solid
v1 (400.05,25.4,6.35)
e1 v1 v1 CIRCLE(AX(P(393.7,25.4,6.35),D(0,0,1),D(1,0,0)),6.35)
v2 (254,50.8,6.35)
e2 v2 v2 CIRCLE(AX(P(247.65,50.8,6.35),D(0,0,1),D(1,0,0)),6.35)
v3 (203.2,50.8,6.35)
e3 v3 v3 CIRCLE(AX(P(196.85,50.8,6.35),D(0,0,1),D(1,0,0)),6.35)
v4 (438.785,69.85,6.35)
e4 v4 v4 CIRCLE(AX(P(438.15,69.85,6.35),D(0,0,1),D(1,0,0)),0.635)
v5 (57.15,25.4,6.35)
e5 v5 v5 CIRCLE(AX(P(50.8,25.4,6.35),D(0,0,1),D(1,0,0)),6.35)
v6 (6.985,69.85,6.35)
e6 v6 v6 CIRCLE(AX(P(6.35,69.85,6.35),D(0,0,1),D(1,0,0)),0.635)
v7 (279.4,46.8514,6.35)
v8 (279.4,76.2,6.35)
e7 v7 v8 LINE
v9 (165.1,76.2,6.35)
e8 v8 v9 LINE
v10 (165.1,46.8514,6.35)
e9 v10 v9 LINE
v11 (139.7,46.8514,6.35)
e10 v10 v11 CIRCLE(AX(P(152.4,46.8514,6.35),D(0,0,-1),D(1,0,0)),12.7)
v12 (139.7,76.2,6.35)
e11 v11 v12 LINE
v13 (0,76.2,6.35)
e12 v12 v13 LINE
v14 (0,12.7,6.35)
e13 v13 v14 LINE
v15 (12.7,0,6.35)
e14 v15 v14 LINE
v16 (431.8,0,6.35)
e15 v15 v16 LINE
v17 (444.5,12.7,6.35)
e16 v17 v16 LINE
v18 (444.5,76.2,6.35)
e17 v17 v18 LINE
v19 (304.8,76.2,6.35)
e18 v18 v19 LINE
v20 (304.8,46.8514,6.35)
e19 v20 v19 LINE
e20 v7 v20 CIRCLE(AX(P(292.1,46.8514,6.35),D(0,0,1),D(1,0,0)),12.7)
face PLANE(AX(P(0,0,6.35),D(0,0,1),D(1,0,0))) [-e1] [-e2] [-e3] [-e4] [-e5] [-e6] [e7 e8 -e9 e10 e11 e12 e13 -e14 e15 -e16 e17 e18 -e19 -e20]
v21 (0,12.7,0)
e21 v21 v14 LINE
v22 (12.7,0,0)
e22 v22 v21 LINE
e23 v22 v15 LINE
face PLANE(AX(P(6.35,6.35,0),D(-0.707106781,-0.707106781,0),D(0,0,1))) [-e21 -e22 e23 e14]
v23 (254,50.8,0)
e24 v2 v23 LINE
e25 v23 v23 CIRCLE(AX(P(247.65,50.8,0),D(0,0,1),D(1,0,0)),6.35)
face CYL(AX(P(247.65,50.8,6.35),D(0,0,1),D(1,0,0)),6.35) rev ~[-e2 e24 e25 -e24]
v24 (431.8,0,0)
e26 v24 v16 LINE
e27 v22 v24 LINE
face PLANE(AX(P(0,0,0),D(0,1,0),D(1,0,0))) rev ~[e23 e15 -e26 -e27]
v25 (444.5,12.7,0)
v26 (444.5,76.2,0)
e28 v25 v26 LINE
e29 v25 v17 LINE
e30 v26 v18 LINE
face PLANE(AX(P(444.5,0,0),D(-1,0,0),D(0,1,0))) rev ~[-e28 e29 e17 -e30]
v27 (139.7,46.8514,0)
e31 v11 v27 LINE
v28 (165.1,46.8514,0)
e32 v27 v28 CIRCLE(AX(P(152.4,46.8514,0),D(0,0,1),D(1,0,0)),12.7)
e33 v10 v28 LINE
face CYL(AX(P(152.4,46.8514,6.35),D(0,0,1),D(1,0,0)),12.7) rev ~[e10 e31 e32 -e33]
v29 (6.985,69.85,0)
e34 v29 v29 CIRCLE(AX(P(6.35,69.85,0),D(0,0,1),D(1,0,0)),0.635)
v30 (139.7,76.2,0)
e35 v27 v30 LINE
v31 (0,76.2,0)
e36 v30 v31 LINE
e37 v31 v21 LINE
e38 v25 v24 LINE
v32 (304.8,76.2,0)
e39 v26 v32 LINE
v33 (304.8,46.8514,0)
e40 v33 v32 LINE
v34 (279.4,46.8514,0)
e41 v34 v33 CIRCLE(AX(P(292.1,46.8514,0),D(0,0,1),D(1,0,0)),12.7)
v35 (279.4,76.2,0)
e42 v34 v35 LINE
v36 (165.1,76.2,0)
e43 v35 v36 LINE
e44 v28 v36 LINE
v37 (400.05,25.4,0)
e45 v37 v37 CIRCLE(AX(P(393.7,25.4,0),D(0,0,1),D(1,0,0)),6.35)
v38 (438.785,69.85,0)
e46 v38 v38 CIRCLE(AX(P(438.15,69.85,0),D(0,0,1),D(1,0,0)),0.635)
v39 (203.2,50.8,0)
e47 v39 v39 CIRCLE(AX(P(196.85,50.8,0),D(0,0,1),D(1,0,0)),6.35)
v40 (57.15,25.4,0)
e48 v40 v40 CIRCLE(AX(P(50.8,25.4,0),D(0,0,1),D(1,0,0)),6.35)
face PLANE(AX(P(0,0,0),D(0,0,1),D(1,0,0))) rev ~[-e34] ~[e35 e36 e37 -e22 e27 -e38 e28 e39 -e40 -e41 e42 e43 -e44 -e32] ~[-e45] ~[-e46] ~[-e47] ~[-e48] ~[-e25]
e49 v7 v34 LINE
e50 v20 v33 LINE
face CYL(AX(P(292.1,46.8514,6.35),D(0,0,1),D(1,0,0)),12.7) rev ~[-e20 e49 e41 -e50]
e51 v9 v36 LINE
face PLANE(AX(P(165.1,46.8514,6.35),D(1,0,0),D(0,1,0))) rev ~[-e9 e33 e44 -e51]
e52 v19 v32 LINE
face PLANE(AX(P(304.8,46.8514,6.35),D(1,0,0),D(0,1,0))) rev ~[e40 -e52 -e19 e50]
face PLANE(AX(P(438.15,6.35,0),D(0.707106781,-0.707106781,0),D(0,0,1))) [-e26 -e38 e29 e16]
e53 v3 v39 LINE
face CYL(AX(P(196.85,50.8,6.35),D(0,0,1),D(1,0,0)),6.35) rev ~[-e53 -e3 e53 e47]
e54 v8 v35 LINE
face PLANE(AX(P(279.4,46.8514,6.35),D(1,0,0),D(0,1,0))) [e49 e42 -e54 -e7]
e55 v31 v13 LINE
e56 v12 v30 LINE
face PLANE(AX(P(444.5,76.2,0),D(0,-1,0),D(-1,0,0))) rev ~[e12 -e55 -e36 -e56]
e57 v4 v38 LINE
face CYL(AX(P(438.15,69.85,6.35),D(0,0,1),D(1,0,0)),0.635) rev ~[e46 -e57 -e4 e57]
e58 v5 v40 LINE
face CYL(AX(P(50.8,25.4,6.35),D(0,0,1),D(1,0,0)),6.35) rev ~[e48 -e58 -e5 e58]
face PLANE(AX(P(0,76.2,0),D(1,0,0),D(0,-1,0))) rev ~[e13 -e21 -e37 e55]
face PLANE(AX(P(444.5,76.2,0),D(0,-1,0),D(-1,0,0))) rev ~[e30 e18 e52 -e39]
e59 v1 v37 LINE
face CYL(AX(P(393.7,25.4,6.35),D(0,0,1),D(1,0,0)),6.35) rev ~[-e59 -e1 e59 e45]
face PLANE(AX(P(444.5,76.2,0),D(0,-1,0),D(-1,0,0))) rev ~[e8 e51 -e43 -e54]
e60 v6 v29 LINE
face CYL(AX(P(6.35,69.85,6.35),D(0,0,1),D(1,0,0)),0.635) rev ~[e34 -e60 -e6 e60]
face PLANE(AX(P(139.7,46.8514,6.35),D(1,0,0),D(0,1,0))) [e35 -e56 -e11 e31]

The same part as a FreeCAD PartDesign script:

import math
import FreeCAD as App
import Part
import Sketcher
from FreeCAD import Vector
Q = App.Units.Quantity


def edges_at(feature, points):
    """Names of the edges that pass closest to the given points."""
    edges = feature.Shape.Edges
    near = lambda p: min(range(len(edges)), key=lambda i: edges[i].distToShape(Part.Vertex(*p))[0])
    return sorted({f"Edge{near(p) + 1}" for p in points})


def add_polygon(sketch, points):
    """Adds a closed chain of lines whose ends are joined by coincident constraints."""
    first, n = sketch.GeometryCount, len(points)
    for a, b in zip(points, points[1:] + points[:1]):
        sketch.addGeometry(Part.LineSegment(App.Vector(*a, 0), App.Vector(*b, 0)), False)
    for i in range(n):
        sketch.addConstraint(Sketcher.Constraint("Coincident", first + i, 2, first + (i + 1) % n, 1))

doc = App.newDocument("Part")
params = doc.addObject("Spreadsheet::Sheet", "Params")
for row, (alias, value) in enumerate([
    ("sketch1_height", "3 in"),
    ("sketch1_width", "17.5 in"),
    ("pad1_length", "0.25 in"),
    ("chamfer_size", "0.5 in"),
    ("chamfer2_size", "0.5 in"),
    ("sketch2_diameter", "1 in"),
    ("pocket1_length", "1 in"),
    ("sketch3_radius", "0.5 in"),
    ("pocket2_length", "1 in"),
    ("sketch4_radius", "0.5 in"),
    ("pocket3_length", "1 in"),
    ("sketch5_diameter", "0.5 in"),
    ("pocket4_length", "1 in"),
    ("sketch6_diameter", "0.05 in"),
    ("pocket5_length", "1 in"),
    ("sketch7_diameter", "0.5 in"),
    ("pocket6_length", "1 in"),
], start=1):
    params.set(f"A{row}", alias)
    params.set(f"B{row}", "=" + value)
    params.setAlias(f"B{row}", alias)

body = doc.addObject("PartDesign::Body", "Body")

sketch1 = body.newObject("Sketcher::SketchObject", "Sketch")
sketch1.AttachmentSupport = (doc.getObject("XY_Plane"), [""])
sketch1.MapMode = "FlatFace"
add_polygon(sketch1, [(0, 76), (0, 0), (444, 0), (444, 76)])
sketch1.addConstraint(Sketcher.Constraint("Vertical", 0))
sketch1.addConstraint(Sketcher.Constraint("Horizontal", 1))
sketch1.addConstraint(Sketcher.Constraint("Vertical", 2))
sketch1.addConstraint(Sketcher.Constraint("Horizontal", 3))
sketch1.addConstraint(Sketcher.Constraint("Coincident", 0, 2, -1, 1))
sketch1.addConstraint(Sketcher.Constraint("DistanceY", 0, 2, 0, 1, Q("3 in")))
sketch1.addConstraint(Sketcher.Constraint("DistanceX", 1, 1, 1, 2, Q("17.5 in")))
sketch1.setExpression("Constraints[9]", "Params.sketch1_height")
sketch1.setExpression("Constraints[10]", "Params.sketch1_width")
pad1 = body.newObject("PartDesign::Pad", "Pad")
pad1.Profile = sketch1
pad1.setExpression("Length", "Params.pad1_length")
doc.recompute()

chamfer = body.newObject("PartDesign::Chamfer", "Chamfer")
chamfer.Base = (pad1, edges_at(pad1, [(444.5, 0, 3.175)]))
chamfer.setExpression("Size", "Params.chamfer_size")
doc.recompute()

chamfer2 = body.newObject("PartDesign::Chamfer", "Chamfer001")
chamfer2.Base = (chamfer, edges_at(chamfer, [(0, 0, 3.175)]))
chamfer2.setExpression("Size", "Params.chamfer2_size")

sketch2 = body.newObject("Sketcher::SketchObject", "Sketch001")
sketch2.AttachmentSupport = (doc.getObject("XY_Plane"), [""])
sketch2.MapMode = "FlatFace"
sketch2.AttachmentOffset = App.Placement(Vector(0, 0, 0.25 * 25.4), App.Rotation())
sketch2.addGeometry(Part.Circle(Vector(152, 47, 0), Vector(0, 0, 1), 13), False)
sketch2.addGeometry(Part.Circle(Vector(292, 47, 0), Vector(0, 0, 1), 13), False)
sketch2.addConstraint(Sketcher.Constraint("Equal", 0, 1))
sketch2.addConstraint(Sketcher.Constraint("Horizontal", 0, 3, 1, 3))
sketch2.addConstraint(Sketcher.Constraint("Diameter", 0, Q("1 in")))
sketch2.addConstraint(Sketcher.Constraint("DistanceX", -1, 1, 0, 3, Q("6 in")))
sketch2.addConstraint(Sketcher.Constraint("DistanceX", -1, 1, 1, 3, Q("11.5 in")))
sketch2.addConstraint(Sketcher.Constraint("DistanceY", -1, 1, 0, 3, Q("46.8514 mm")))
sketch2.setExpression("Constraints[2]", "Params.sketch2_diameter")
pocket1 = body.newObject("PartDesign::Pocket", "Pocket")
pocket1.Profile = sketch2
pocket1.setExpression("Length", "Params.pocket1_length")

sketch3 = body.newObject("Sketcher::SketchObject", "Sketch002")
sketch3.AttachmentSupport = (doc.getObject("XY_Plane"), [""])
sketch3.MapMode = "FlatFace"
sketch3.AttachmentOffset = App.Placement(Vector(0, 0, 0.25 * 25.4), App.Rotation())
sketch3.addGeometry(Part.ArcOfCircle(Part.Circle(Vector(152, 47, 0), Vector(0, 0, 1), 13), math.radians(0), math.radians(180)), False)
sketch3.addGeometry(Part.LineSegment(Vector(165, 47, 0), Vector(165, 76, 0)), False)
sketch3.addGeometry(Part.LineSegment(Vector(165, 76, 0), Vector(140, 76, 0)), False)
sketch3.addGeometry(Part.LineSegment(Vector(140, 76, 0), Vector(140, 47, 0)), False)
sketch3.addConstraint(Sketcher.Constraint("Tangent", 0, 1, 1, 1))
sketch3.addConstraint(Sketcher.Constraint("Coincident", 1, 2, 2, 1))
sketch3.addConstraint(Sketcher.Constraint("Coincident", 2, 2, 3, 1))
sketch3.addConstraint(Sketcher.Constraint("Tangent", 3, 2, 0, 2))
sketch3.addConstraint(Sketcher.Constraint("Vertical", 1))
sketch3.addConstraint(Sketcher.Constraint("Horizontal", 2))
sketch3.addConstraint(Sketcher.Constraint("Vertical", 3))
sketch3.addConstraint(Sketcher.Constraint("Radius", 0, Q("0.5 in")))
sketch3.addConstraint(Sketcher.Constraint("DistanceX", -1, 1, 0, 3, Q("6 in")))
sketch3.addConstraint(Sketcher.Constraint("DistanceY", -1, 1, 1, 2, Q("3 in")))
sketch3.addConstraint(Sketcher.Constraint("DistanceY", 1, 1, 1, 2, Q("29.3486 mm")))
sketch3.setExpression("Constraints[7]", "Params.sketch3_radius")
pocket2 = body.newObject("PartDesign::Pocket", "Pocket001")
pocket2.Profile = sketch3
pocket2.setExpression("Length", "Params.pocket2_length")

sketch4 = body.newObject("Sketcher::SketchObject", "Sketch003")
sketch4.AttachmentSupport = (doc.getObject("XY_Plane"), [""])
sketch4.MapMode = "FlatFace"
sketch4.AttachmentOffset = App.Placement(Vector(0, 0, 0.25 * 25.4), App.Rotation())
sketch4.addGeometry(Part.ArcOfCircle(Part.Circle(Vector(292, 47, 0), Vector(0, 0, 1), 13), math.radians(0), math.radians(180)), False)
sketch4.addGeometry(Part.LineSegment(Vector(305, 47, 0), Vector(305, 76, 0)), False)
sketch4.addGeometry(Part.LineSegment(Vector(305, 76, 0), Vector(279, 76, 0)), False)
sketch4.addGeometry(Part.LineSegment(Vector(279, 76, 0), Vector(279, 47, 0)), False)
sketch4.addConstraint(Sketcher.Constraint("Tangent", 0, 1, 1, 1))
sketch4.addConstraint(Sketcher.Constraint("Coincident", 1, 2, 2, 1))
sketch4.addConstraint(Sketcher.Constraint("Coincident", 2, 2, 3, 1))
sketch4.addConstraint(Sketcher.Constraint("Tangent", 3, 2, 0, 2))
sketch4.addConstraint(Sketcher.Constraint("Vertical", 1))
sketch4.addConstraint(Sketcher.Constraint("Horizontal", 2))
sketch4.addConstraint(Sketcher.Constraint("Vertical", 3))
sketch4.addConstraint(Sketcher.Constraint("Radius", 0, Q("0.5 in")))
sketch4.addConstraint(Sketcher.Constraint("DistanceX", -1, 1, 0, 1, Q("12 in")))
sketch4.addConstraint(Sketcher.Constraint("DistanceY", -1, 1, 1, 2, Q("3 in")))
sketch4.addConstraint(Sketcher.Constraint("DistanceY", 1, 1, 1, 2, Q("29.3486 mm")))
sketch4.setExpression("Constraints[7]", "Params.sketch4_radius")
pocket3 = body.newObject("PartDesign::Pocket", "Pocket002")
pocket3.Profile = sketch4
pocket3.setExpression("Length", "Params.pocket3_length")

sketch5 = body.newObject("Sketcher::SketchObject", "Sketch004")
sketch5.AttachmentSupport = (doc.getObject("XY_Plane"), [""])
sketch5.MapMode = "FlatFace"
sketch5.AttachmentOffset = App.Placement(Vector(0, 0, 0.25 * 25.4), App.Rotation())
sketch5.addGeometry(Part.Circle(Vector(51, 25, 0), Vector(0, 0, 1), 6), False)
sketch5.addGeometry(Part.Circle(Vector(394, 25, 0), Vector(0, 0, 1), 6), False)
sketch5.addConstraint(Sketcher.Constraint("Equal", 0, 1))
sketch5.addConstraint(Sketcher.Constraint("Horizontal", 0, 3, 1, 3))
sketch5.addConstraint(Sketcher.Constraint("Diameter", 0, Q("0.5 in")))
sketch5.addConstraint(Sketcher.Constraint("DistanceX", -1, 1, 0, 3, Q("2 in")))
sketch5.addConstraint(Sketcher.Constraint("DistanceY", -1, 1, 0, 3, Q("1 in")))
sketch5.addConstraint(Sketcher.Constraint("DistanceX", -1, 1, 1, 3, Q("15.5 in")))
sketch5.setExpression("Constraints[2]", "Params.sketch5_diameter")
pocket4 = body.newObject("PartDesign::Pocket", "Pocket003")
pocket4.Profile = sketch5
pocket4.setExpression("Length", "Params.pocket4_length")

sketch6 = body.newObject("Sketcher::SketchObject", "Sketch005")
sketch6.AttachmentSupport = (doc.getObject("XY_Plane"), [""])
sketch6.MapMode = "FlatFace"
sketch6.AttachmentOffset = App.Placement(Vector(0, 0, 0.25 * 25.4), App.Rotation())
sketch6.addGeometry(Part.Circle(Vector(6.3, 69.8, 0), Vector(0, 0, 1), 0.6), False)
sketch6.addGeometry(Part.Circle(Vector(438.1, 69.8, 0), Vector(0, 0, 1), 0.6), False)
sketch6.addConstraint(Sketcher.Constraint("Equal", 0, 1))
sketch6.addConstraint(Sketcher.Constraint("Horizontal", 0, 3, 1, 3))
sketch6.addConstraint(Sketcher.Constraint("Diameter", 0, Q("0.05 in")))
sketch6.addConstraint(Sketcher.Constraint("DistanceX", -1, 1, 0, 3, Q("0.25 in")))
sketch6.addConstraint(Sketcher.Constraint("DistanceX", 0, 3, 1, 3, Q("17 in")))
sketch6.addConstraint(Sketcher.Constraint("DistanceY", -1, 1, 0, 3, Q("2.75 in")))
sketch6.setExpression("Constraints[2]", "Params.sketch6_diameter")
pocket5 = body.newObject("PartDesign::Pocket", "Pocket004")
pocket5.Profile = sketch6
pocket5.setExpression("Length", "Params.pocket5_length")

sketch7 = body.newObject("Sketcher::SketchObject", "Sketch006")
sketch7.AttachmentSupport = (doc.getObject("XY_Plane"), [""])
sketch7.MapMode = "FlatFace"
sketch7.AttachmentOffset = App.Placement(Vector(0, 0, 0.25 * 25.4), App.Rotation())
sketch7.addGeometry(Part.Circle(Vector(197, 51, 0), Vector(0, 0, 1), 6), False)
sketch7.addGeometry(Part.Circle(Vector(248, 51, 0), Vector(0, 0, 1), 6), False)
sketch7.addConstraint(Sketcher.Constraint("Equal", 0, 1))
sketch7.addConstraint(Sketcher.Constraint("Horizontal", 0, 3, 1, 3))
sketch7.addConstraint(Sketcher.Constraint("Diameter", 0, Q("0.5 in")))
sketch7.addConstraint(Sketcher.Constraint("DistanceY", -1, 1, 0, 3, Q("2 in")))
sketch7.addConstraint(Sketcher.Constraint("DistanceX", 0, 3, 1, 3, Q("2 in")))
sketch7.addConstraint(Sketcher.Constraint("DistanceX", -1, 1, 0, 3, Q("7.75 in")))
sketch7.setExpression("Constraints[2]", "Params.sketch7_diameter")
pocket6 = body.newObject("PartDesign::Pocket", "Pocket005")
pocket6.Profile = sketch7
pocket6.setExpression("Length", "Params.pocket6_length")

doc.recompute()
